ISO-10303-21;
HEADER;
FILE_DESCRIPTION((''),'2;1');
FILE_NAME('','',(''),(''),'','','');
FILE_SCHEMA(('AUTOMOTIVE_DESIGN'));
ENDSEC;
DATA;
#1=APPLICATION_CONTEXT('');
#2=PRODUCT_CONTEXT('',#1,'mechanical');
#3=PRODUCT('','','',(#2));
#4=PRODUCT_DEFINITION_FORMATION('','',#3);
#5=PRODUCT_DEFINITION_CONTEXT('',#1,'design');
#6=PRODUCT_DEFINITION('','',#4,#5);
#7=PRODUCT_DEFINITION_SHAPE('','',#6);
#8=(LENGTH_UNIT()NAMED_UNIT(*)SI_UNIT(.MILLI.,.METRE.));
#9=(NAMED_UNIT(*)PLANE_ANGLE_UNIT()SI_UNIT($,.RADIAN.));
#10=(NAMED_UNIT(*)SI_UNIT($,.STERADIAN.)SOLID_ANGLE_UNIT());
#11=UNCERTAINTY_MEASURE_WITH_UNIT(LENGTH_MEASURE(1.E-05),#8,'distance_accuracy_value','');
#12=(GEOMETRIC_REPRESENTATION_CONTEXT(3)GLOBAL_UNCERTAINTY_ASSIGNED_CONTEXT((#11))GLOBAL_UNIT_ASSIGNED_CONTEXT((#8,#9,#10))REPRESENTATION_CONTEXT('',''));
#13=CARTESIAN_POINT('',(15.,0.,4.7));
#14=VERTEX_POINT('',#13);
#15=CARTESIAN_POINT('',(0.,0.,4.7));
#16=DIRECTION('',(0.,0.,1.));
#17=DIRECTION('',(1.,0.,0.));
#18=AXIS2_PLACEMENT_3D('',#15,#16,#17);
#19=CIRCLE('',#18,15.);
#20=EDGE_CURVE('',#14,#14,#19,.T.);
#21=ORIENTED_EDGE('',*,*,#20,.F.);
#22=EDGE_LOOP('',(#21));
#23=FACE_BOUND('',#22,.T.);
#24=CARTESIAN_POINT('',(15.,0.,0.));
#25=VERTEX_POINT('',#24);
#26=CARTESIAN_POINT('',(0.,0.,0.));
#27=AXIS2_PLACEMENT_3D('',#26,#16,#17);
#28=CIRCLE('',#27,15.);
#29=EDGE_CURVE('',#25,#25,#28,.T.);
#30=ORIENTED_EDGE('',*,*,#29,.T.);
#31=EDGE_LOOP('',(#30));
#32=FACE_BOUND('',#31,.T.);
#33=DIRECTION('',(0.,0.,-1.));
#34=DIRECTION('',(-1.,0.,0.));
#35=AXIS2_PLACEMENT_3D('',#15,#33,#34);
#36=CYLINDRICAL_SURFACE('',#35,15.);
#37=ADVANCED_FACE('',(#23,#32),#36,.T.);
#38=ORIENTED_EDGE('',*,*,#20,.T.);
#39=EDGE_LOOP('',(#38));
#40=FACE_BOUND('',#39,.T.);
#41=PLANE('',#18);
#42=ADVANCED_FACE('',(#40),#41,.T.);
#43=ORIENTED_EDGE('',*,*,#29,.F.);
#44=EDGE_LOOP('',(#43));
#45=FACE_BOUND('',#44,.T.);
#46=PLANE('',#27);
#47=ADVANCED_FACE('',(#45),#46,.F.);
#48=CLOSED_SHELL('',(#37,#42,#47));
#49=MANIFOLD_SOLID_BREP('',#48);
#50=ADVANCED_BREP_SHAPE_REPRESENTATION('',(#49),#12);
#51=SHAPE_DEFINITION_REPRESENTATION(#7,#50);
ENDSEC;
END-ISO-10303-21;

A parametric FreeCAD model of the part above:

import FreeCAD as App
import Part
import Sketcher

doc = App.newDocument("Part")
body = doc.addObject("PartDesign::Body", "Body")

# Sketch on XY plane
sketch1 = body.newObject("Sketcher::SketchObject", "Sketch")
sketch1.AttachmentSupport = (doc.getObject("XY_Plane"), [""])
sketch1.MapMode = "FlatFace"
sketch1.addGeometry(Part.Circle(App.Vector(0, 0, 0), App.Vector(0, 0, 1), 15), False)
sketch1.addConstraint(Sketcher.Constraint("Coincident", 0, 3, -1, 1))
sketch1.addConstraint(Sketcher.Constraint("Diameter", 0, 30.0))
pad1 = body.newObject("PartDesign::Pad", "Pad")
pad1.Profile = sketch1
pad1.Length = 4.7

doc.recompute()
